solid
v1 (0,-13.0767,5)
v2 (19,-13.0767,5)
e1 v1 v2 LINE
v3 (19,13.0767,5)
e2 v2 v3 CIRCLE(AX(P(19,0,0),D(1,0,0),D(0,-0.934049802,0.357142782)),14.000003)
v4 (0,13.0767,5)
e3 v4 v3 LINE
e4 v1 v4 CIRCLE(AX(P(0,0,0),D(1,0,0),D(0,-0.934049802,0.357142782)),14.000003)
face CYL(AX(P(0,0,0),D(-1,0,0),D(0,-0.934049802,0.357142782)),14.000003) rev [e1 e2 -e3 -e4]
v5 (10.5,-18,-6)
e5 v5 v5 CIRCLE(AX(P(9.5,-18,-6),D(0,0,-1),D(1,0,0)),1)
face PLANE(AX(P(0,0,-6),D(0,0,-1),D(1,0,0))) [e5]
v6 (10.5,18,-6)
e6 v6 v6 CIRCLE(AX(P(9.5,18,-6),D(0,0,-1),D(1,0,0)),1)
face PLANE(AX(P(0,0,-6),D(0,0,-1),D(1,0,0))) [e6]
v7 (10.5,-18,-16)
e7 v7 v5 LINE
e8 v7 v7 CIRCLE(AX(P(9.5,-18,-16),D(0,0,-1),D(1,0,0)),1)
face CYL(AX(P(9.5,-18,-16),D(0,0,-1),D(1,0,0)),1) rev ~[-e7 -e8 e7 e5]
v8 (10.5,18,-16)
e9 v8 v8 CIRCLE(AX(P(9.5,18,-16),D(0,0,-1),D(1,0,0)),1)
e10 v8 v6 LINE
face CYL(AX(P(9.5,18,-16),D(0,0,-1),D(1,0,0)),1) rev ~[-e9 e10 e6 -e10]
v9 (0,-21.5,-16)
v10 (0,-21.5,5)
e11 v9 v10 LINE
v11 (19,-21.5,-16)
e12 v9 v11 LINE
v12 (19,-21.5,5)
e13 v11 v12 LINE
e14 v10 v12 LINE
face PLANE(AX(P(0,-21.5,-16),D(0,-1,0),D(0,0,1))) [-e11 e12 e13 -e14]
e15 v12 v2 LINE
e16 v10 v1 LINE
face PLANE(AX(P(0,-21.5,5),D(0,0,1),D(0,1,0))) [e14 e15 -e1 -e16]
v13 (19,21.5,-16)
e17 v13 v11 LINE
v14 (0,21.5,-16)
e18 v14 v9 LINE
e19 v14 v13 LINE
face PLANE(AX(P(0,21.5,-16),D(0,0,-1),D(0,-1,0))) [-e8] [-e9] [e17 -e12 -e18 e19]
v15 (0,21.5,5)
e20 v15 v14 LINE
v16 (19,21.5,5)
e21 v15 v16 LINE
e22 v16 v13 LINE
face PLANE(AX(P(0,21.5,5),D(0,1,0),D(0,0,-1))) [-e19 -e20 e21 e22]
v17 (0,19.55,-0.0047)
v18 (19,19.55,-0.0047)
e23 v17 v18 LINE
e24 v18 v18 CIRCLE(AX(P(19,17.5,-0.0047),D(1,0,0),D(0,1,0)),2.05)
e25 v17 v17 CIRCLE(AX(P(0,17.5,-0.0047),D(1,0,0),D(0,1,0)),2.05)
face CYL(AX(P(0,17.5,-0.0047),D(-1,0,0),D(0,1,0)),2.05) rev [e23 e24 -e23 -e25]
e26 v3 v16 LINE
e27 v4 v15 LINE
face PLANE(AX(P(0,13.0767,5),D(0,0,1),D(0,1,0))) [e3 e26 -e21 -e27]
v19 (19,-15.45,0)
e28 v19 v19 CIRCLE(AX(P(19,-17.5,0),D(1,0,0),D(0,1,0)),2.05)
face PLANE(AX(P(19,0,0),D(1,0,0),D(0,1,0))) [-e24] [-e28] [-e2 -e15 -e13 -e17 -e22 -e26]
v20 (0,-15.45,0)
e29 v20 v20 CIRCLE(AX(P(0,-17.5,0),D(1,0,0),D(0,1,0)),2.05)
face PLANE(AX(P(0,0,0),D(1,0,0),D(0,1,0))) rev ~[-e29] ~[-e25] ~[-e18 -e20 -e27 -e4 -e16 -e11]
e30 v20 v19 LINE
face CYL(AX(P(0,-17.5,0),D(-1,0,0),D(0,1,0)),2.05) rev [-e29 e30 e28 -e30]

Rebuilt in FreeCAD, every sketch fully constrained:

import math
import FreeCAD as App
import Part
import Sketcher
from FreeCAD import Vector
Q = App.Units.Quantity

doc = App.newDocument("Part")
body = doc.addObject("PartDesign::Body", "Body")

sketch1 = body.newObject("Sketcher::SketchObject", "Sketch")
sketch1.AttachmentSupport = (doc.getObject("YZ_Plane"), [""])
sketch1.MapMode = "FlatFace"
sketch1.addGeometry([
    Part.LineSegment(Vector(21.5, -16, 0), Vector(21.5, 5, 0)),
    Part.LineSegment(Vector(21.5, 5, 0), Vector(13.1, 5, 0)),
    Part.ArcOfCircle(Part.Circle(Vector(0, 0, 0), Vector(0, 0, 1), 14), math.radians(159), math.radians(381)),
    Part.LineSegment(Vector(-13.1, 5, 0), Vector(-21.5, 5, 0)),
    Part.LineSegment(Vector(-21.5, 5, 0), Vector(-21.5, -16, 0)),
    Part.LineSegment(Vector(-21.5, -16, 0), Vector(21.5, -16, 0)),
    Part.Circle(Vector(-17.5, 0, 0), Vector(0, 0, 1), 2),
    Part.Circle(Vector(17.5, 0, 0), Vector(0, 0, 1), 2),
], False)
sketch1.addConstraint([
    Sketcher.Constraint("Coincident", 0, 2, 1, 1),
    Sketcher.Constraint("Coincident", 1, 2, 2, 2),
    Sketcher.Constraint("Coincident", 2, 1, 3, 1),
    Sketcher.Constraint("Coincident", 3, 2, 4, 1),
    Sketcher.Constraint("Coincident", 4, 2, 5, 1),
    Sketcher.Constraint("Coincident", 5, 2, 0, 1),
    Sketcher.Constraint("Vertical", 0),
    Sketcher.Constraint("Horizontal", 1),
    Sketcher.Constraint("Horizontal", 3),
    Sketcher.Constraint("Vertical", 4),
    Sketcher.Constraint("Horizontal", 5),
    Sketcher.Constraint("Coincident", 2, 3, -1, 1),
    Sketcher.Constraint("Equal", 6, 7),
    Sketcher.Constraint("Symmetric", 0, 2, 3, 2, -2),
    Sketcher.Constraint("PointOnObject", 6, 3, -1),
    Sketcher.Constraint("Radius", 2, Q("14 mm")),
    Sketcher.Constraint("Diameter", 6, Q("4.1 mm")),
    Sketcher.Constraint("DistanceY", -1, 1, 0, 2, Q("5 mm")),
    Sketcher.Constraint("DistanceY", 4, 2, -1, 1, Q("16 mm")),
    Sketcher.Constraint("DistanceX", 6, 3, -1, 1, Q("17.5 mm")),
    Sketcher.Constraint("DistanceX", -1, 1, 7, 3, Q("17.5 mm")),
    Sketcher.Constraint("DistanceX", -1, 1, 0, 2, Q("21.5 mm")),
    Sketcher.Constraint("DistanceY", 7, 3, -1, 1, Q("0.0047 mm")),
])
pad1 = body.newObject("PartDesign::Pad", "Pad")
pad1.Profile = sketch1
pad1.Length = 19

sketch2 = body.newObject("Sketcher::SketchObject", "Sketch001")
sketch2.AttachmentSupport = (doc.getObject("XY_Plane"), [""])
sketch2.MapMode = "FlatFace"
sketch2.AttachmentOffset = App.Placement(Vector(0, 0, -16), App.Rotation())
sketch2.addGeometry([
    Part.Circle(Vector(9.5, -18, 0), Vector(0, 0, 1), 1),
    Part.Circle(Vector(9.5, 18, 0), Vector(0, 0, 1), 1),
], False)
sketch2.addConstraint([
    Sketcher.Constraint("Equal", 0, 1),
    Sketcher.Constraint("Symmetric", 0, 3, 1, 3, -1),
    Sketcher.Constraint("Diameter", 0, Q("2 mm")),
    Sketcher.Constraint("DistanceY", 0, 3, -1, 1, Q("18 mm")),
    Sketcher.Constraint("DistanceX", -1, 1, 0, 3, Q("9.5 mm")),
])
pocket1 = body.newObject("PartDesign::Pocket", "Pocket")
pocket1.Profile = sketch2
pocket1.Length = 10
pocket1.Reversed = True

doc.recompute()
